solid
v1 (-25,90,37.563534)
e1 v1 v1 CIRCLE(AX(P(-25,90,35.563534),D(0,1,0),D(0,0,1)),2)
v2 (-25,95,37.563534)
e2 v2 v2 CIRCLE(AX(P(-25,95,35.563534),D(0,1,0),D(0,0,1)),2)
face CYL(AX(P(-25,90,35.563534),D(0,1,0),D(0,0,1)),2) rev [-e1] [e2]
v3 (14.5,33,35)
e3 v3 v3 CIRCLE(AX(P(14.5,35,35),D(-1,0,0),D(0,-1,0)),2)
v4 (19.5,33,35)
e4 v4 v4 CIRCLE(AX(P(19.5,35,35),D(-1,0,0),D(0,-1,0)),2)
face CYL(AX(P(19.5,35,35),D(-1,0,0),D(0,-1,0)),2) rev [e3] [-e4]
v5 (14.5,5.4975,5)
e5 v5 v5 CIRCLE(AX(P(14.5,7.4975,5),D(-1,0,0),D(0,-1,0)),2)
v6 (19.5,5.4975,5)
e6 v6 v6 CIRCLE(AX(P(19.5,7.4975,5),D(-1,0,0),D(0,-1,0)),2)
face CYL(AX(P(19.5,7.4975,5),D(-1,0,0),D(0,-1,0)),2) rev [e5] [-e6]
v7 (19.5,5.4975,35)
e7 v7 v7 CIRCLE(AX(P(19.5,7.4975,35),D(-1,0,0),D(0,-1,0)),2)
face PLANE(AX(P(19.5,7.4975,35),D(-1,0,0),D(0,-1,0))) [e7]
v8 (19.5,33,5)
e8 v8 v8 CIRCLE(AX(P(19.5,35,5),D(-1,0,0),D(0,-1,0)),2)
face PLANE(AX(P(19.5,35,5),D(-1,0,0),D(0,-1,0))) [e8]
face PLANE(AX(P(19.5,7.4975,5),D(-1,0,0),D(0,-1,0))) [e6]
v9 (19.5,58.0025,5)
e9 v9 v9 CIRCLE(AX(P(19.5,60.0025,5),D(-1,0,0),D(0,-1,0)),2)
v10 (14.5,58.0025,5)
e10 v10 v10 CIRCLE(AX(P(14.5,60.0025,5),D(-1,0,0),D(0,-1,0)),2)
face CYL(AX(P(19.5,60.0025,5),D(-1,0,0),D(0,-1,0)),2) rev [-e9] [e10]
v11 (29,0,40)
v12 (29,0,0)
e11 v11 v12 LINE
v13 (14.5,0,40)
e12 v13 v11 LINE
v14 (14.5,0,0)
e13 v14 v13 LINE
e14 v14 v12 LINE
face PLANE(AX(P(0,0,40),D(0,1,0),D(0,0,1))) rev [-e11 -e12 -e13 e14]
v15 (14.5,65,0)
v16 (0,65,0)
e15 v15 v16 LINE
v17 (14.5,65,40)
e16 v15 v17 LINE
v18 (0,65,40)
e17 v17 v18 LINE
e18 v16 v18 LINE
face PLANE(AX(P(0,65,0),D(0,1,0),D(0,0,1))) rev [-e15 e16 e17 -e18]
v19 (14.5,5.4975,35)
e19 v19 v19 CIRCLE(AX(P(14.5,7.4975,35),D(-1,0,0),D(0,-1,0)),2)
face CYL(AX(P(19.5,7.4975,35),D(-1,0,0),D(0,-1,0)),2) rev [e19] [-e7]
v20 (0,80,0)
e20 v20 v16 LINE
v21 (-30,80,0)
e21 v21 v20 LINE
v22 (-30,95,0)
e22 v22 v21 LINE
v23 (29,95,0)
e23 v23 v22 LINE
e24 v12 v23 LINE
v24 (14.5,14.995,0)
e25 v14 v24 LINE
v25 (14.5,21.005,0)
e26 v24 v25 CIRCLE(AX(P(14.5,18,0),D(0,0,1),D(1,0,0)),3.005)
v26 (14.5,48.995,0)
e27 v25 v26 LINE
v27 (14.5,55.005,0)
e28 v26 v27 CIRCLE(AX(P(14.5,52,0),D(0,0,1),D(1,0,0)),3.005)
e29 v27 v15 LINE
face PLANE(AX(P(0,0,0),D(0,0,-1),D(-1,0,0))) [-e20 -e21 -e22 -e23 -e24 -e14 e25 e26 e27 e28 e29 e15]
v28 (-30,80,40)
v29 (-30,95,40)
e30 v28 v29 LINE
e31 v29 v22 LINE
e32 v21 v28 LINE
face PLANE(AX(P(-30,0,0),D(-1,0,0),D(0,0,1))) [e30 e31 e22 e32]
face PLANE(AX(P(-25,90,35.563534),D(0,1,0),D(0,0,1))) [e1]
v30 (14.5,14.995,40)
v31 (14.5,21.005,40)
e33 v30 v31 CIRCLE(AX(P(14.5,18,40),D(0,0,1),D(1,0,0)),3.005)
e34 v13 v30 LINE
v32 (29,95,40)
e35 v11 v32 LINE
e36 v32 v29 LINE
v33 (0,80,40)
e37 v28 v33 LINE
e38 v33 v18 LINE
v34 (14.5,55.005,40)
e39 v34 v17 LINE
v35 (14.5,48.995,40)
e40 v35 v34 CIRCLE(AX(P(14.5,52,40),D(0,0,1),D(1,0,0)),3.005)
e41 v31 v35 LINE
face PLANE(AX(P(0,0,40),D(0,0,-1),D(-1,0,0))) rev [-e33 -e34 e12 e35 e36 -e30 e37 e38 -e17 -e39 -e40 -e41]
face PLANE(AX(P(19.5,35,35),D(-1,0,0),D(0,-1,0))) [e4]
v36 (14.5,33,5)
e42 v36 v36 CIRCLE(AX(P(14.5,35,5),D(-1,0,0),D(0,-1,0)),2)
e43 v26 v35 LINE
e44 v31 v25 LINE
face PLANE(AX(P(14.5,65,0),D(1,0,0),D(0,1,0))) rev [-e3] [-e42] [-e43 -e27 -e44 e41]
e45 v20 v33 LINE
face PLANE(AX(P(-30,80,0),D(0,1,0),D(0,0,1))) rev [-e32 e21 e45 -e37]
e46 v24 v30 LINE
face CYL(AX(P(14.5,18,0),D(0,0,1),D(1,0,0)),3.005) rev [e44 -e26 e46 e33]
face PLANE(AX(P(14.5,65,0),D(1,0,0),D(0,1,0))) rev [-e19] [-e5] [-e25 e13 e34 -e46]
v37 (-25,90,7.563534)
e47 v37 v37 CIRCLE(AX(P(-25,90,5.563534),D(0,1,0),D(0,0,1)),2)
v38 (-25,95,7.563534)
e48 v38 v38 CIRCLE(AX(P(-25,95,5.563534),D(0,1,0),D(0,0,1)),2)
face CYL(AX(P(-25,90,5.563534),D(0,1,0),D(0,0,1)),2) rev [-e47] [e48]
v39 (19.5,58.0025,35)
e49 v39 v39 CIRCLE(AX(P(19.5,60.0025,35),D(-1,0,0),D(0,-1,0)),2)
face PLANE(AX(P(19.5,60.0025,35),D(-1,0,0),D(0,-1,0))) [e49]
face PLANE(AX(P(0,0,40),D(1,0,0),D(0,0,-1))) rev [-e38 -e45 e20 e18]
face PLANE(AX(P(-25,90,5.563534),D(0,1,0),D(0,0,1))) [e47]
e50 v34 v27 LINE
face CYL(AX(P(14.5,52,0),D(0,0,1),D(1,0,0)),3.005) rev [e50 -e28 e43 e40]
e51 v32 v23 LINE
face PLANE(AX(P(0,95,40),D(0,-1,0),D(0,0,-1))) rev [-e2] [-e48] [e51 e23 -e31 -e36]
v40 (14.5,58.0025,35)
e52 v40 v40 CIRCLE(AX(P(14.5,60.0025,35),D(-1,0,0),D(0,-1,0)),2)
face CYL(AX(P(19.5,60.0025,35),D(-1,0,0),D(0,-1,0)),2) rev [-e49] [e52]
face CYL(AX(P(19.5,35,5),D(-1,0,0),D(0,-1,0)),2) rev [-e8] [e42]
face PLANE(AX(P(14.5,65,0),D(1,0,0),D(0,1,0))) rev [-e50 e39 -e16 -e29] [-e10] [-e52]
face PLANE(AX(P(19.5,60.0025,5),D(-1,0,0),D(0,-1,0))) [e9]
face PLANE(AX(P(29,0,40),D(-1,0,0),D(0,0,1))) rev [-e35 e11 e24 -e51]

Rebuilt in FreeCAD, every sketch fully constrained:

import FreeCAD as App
import Part
import Sketcher

V = App.Vector

doc = App.newDocument("Part")
params = doc.addObject("Spreadsheet::Sheet", "Params")
for row, (alias, value) in enumerate([
    ("sketch1_width", "29 mm"),
    ("sketch1_height", "95 mm"),
    ("pad1_length", "40 mm"),
    ("sketch2_diameter", "6.01 mm"),
    ("sketch3_width", "15 mm"),
    ("sketch3_height", "40 mm"),
    ("pad2_length", "30 mm"),
    ("sketch4_height", "65 mm"),
    ("sketch4_width", "14.5 mm"),
    ("sketch5_diameter", "4 mm"),
    ("pocket3_length", "5 mm"),
    ("sketch6_diameter", "4 mm"),
    ("pocket4_length", "5 mm"),
    ("sketch7_diameter", "4 mm"),
    ("pocket5_length", "5 mm"),
    ("sketch8_diameter", "4 mm"),
    ("pocket6_length", "5 mm"),
], start=1):
    params.set(f"A{row}", alias)
    params.set(f"B{row}", "=" + value)
    params.setAlias(f"B{row}", alias)

body = doc.addObject("PartDesign::Body", "Body")

sketch1 = body.newObject("Sketcher::SketchObject", "Sketch")
sketch1.AttachmentSupport = (doc.getObject("XY_Plane"), [""])
sketch1.MapMode = "FlatFace"
sketch1.addGeometry(Part.LineSegment(V(0, 95, 0), V(0, 0, 0)), False)
sketch1.addGeometry(Part.LineSegment(V(0, 0, 0), V(29, 0, 0)), False)
sketch1.addGeometry(Part.LineSegment(V(29, 0, 0), V(29, 95, 0)), False)
sketch1.addGeometry(Part.LineSegment(V(29, 95, 0), V(0, 95, 0)), False)
sketch1.addConstraint(Sketcher.Constraint("Coincident", 0, 2, 1, 1))
sketch1.addConstraint(Sketcher.Constraint("Coincident", 1, 2, 2, 1))
sketch1.addConstraint(Sketcher.Constraint("Coincident", 2, 2, 3, 1))
sketch1.addConstraint(Sketcher.Constraint("Coincident", 3, 2, 0, 1))
sketch1.addConstraint(Sketcher.Constraint("Vertical", 0))
sketch1.addConstraint(Sketcher.Constraint("Horizontal", 1))
sketch1.addConstraint(Sketcher.Constraint("Vertical", 2))
sketch1.addConstraint(Sketcher.Constraint("Horizontal", 3))
sketch1.addConstraint(Sketcher.Constraint("Coincident", 0, 2, -1, 1))
sketch1.addConstraint(Sketcher.Constraint("DistanceX", 1, 1, 1, 2, 29.0))
sketch1.addConstraint(Sketcher.Constraint("DistanceY", 0, 2, 0, 1, 95.0))
sketch1.setExpression("Constraints[9]", "Params.sketch1_width")
sketch1.setExpression("Constraints[10]", "Params.sketch1_height")
pad1 = body.newObject("PartDesign::Pad", "Pad")
pad1.Profile = sketch1
pad1.setExpression("Length", "Params.pad1_length")

sketch2 = body.newObject("Sketcher::SketchObject", "Sketch001")
sketch2.AttachmentSupport = (doc.getObject("XY_Plane"), [""])
sketch2.MapMode = "FlatFace"
sketch2.AttachmentOffset = App.Placement(V(0, 0, 40), App.Rotation())
sketch2.addGeometry(Part.Circle(V(14.5, 52, 0), V(0, 0, 1), 3), False)
sketch2.addGeometry(Part.Circle(V(14.5, 18, 0), V(0, 0, 1), 3), False)
sketch2.addConstraint(Sketcher.Constraint("Equal", 0, 1))
sketch2.addConstraint(Sketcher.Constraint("Vertical", 0, 3, 1, 3))
sketch2.addConstraint(Sketcher.Constraint("Diameter", 0, 6.01))
sketch2.addConstraint(Sketcher.Constraint("DistanceY", -1, 1, 0, 3, 52.0))
sketch2.addConstraint(Sketcher.Constraint("DistanceY", -1, 1, 1, 3, 18.0))
sketch2.addConstraint(Sketcher.Constraint("DistanceX", -1, 1, 0, 3, 14.5))
sketch2.setExpression("Constraints[2]", "Params.sketch2_diameter")
pocket1 = body.newObject("PartDesign::Pocket", "Pocket")
pocket1.Profile = sketch2
pocket1.Type = "ThroughAll"

sketch3 = body.newObject("Sketcher::SketchObject", "Sketch002")
sketch3.AttachmentSupport = (doc.getObject("YZ_Plane"), [""])
sketch3.MapMode = "FlatFace"
sketch3.addGeometry(Part.LineSegment(V(95, 0, 0), V(80, 0, 0)), False)
sketch3.addGeometry(Part.LineSegment(V(80, 0, 0), V(80, 40, 0)), False)
sketch3.addGeometry(Part.LineSegment(V(80, 40, 0), V(95, 40, 0)), False)
sketch3.addGeometry(Part.LineSegment(V(95, 40, 0), V(95, 0, 0)), False)
sketch3.addConstraint(Sketcher.Constraint("Coincident", 0, 2, 1, 1))
sketch3.addConstraint(Sketcher.Constraint("Coincident", 1, 2, 2, 1))
sketch3.addConstraint(Sketcher.Constraint("Coincident", 2, 2, 3, 1))
sketch3.addConstraint(Sketcher.Constraint("Coincident", 3, 2, 0, 1))
sketch3.addConstraint(Sketcher.Constraint("Horizontal", 0))
sketch3.addConstraint(Sketcher.Constraint("Vertical", 1))
sketch3.addConstraint(Sketcher.Constraint("Horizontal", 2))
sketch3.addConstraint(Sketcher.Constraint("Vertical", 3))
sketch3.addConstraint(Sketcher.Constraint("PointOnObject", 0, 2, -1))
sketch3.addConstraint(Sketcher.Constraint("DistanceX", 0, 2, 0, 1, 15.0))
sketch3.addConstraint(Sketcher.Constraint("DistanceY", 1, 1, 1, 2, 40.0))
sketch3.addConstraint(Sketcher.Constraint("DistanceX", -1, 1, 0, 2, 80.0))
sketch3.setExpression("Constraints[9]", "Params.sketch3_width")
sketch3.setExpression("Constraints[10]", "Params.sketch3_height")
pad2 = body.newObject("PartDesign::Pad", "Pad001")
pad2.Profile = sketch3
pad2.setExpression("Length", "Params.pad2_length")
pad2.Reversed = True

sketch4 = body.newObject("Sketcher::SketchObject", "Sketch003")
sketch4.AttachmentSupport = (doc.getObject("XY_Plane"), [""])
sketch4.MapMode = "FlatFace"
sketch4.AttachmentOffset = App.Placement(V(0, 0, 40), App.Rotation())
sketch4.addGeometry(Part.LineSegment(V(0, 65, 0), V(0, 0, 0)), False)
sketch4.addGeometry(Part.LineSegment(V(0, 0, 0), V(14, 0, 0)), False)
sketch4.addGeometry(Part.LineSegment(V(14, 0, 0), V(14, 65, 0)), False)
sketch4.addGeometry(Part.LineSegment(V(14, 65, 0), V(0, 65, 0)), False)
sketch4.addConstraint(Sketcher.Constraint("Coincident", 0, 2, 1, 1))
sketch4.addConstraint(Sketcher.Constraint("Coincident", 1, 2, 2, 1))
sketch4.addConstraint(Sketcher.Constraint("Coincident", 2, 2, 3, 1))
sketch4.addConstraint(Sketcher.Constraint("Coincident", 3, 2, 0, 1))
sketch4.addConstraint(Sketcher.Constraint("Vertical", 0))
sketch4.addConstraint(Sketcher.Constraint("Horizontal", 1))
sketch4.addConstraint(Sketcher.Constraint("Vertical", 2))
sketch4.addConstraint(Sketcher.Constraint("Horizontal", 3))
sketch4.addConstraint(Sketcher.Constraint("Coincident", 0, 2, -1, 1))
sketch4.addConstraint(Sketcher.Constraint("DistanceY", 0, 2, 0, 1, 65.0))
sketch4.addConstraint(Sketcher.Constraint("DistanceX", 1, 1, 1, 2, 14.5))
sketch4.setExpression("Constraints[9]", "Params.sketch4_height")
sketch4.setExpression("Constraints[10]", "Params.sketch4_width")
pocket2 = body.newObject("PartDesign::Pocket", "Pocket001")
pocket2.Profile = sketch4
pocket2.Type = "ThroughAll"

sketch5 = body.newObject("Sketcher::SketchObject", "Sketch004")
sketch5.AttachmentSupport = (doc.getObject("YZ_Plane"), [""])
sketch5.MapMode = "FlatFace"
sketch5.AttachmentOffset = App.Placement(V(0, 0, 14.5), App.Rotation())
sketch5.addGeometry(Part.Circle(V(60, 5, 0), V(0, 0, 1), 2), False)
sketch5.addGeometry(Part.Circle(V(60, 35, 0), V(0, 0, 1), 2), False)
sketch5.addConstraint(Sketcher.Constraint("Equal", 0, 1))
sketch5.addConstraint(Sketcher.Constraint("Vertical", 0, 3, 1, 3))
sketch5.addConstraint(Sketcher.Constraint("Diameter", 0, 4.0))
sketch5.addConstraint(Sketcher.Constraint("DistanceY", -1, 1, 0, 3, 5.0))
sketch5.addConstraint(Sketcher.Constraint("DistanceY", -1, 1, 1, 3, 35.0))
sketch5.addConstraint(Sketcher.Constraint("DistanceX", -1, 1, 0, 3, 60.0025))
sketch5.setExpression("Constraints[2]", "Params.sketch5_diameter")
pocket3 = body.newObject("PartDesign::Pocket", "Pocket002")
pocket3.Profile = sketch5
pocket3.setExpression("Length", "Params.pocket3_length")
pocket3.Reversed = True

sketch6 = body.newObject("Sketcher::SketchObject", "Sketch005")
sketch6.AttachmentSupport = (doc.getObject("YZ_Plane"), [""])
sketch6.MapMode = "FlatFace"
sketch6.AttachmentOffset = App.Placement(V(0, 0, 14.5), App.Rotation())
sketch6.addGeometry(Part.Circle(V(7.5, 5, 0), V(0, 0, 1), 2), False)
sketch6.addGeometry(Part.Circle(V(7.5, 35, 0), V(0, 0, 1), 2), False)
sketch6.addConstraint(Sketcher.Constraint("Equal", 0, 1))
sketch6.addConstraint(Sketcher.Constraint("Vertical", 0, 3, 1, 3))
sketch6.addConstraint(Sketcher.Constraint("Diameter", 0, 4.0))
sketch6.addConstraint(Sketcher.Constraint("DistanceY", -1, 1, 0, 3, 5.0))
sketch6.addConstraint(Sketcher.Constraint("DistanceY", -1, 1, 1, 3, 35.0))
sketch6.addConstraint(Sketcher.Constraint("DistanceX", -1, 1, 0, 3, 7.4975))
sketch6.setExpression("Constraints[2]", "Params.sketch6_diameter")
pocket4 = body.newObject("PartDesign::Pocket", "Pocket003")
pocket4.Profile = sketch6
pocket4.setExpression("Length", "Params.pocket4_length")
pocket4.Reversed = True

sketch7 = body.newObject("Sketcher::SketchObject", "Sketch006")
sketch7.AttachmentSupport = (doc.getObject("YZ_Plane"), [""])
sketch7.MapMode = "FlatFace"
sketch7.AttachmentOffset = App.Placement(V(0, 0, 14.5), App.Rotation())
sketch7.addGeometry(Part.Circle(V(35, 5, 0), V(0, 0, 1), 2), False)
sketch7.addGeometry(Part.Circle(V(35, 35, 0), V(0, 0, 1), 2), False)
sketch7.addConstraint(Sketcher.Constraint("Equal", 0, 1))
sketch7.addConstraint(Sketcher.Constraint("Vertical", 0, 3, 1, 3))
sketch7.addConstraint(Sketcher.Constraint("Diameter", 0, 4.0))
sketch7.addConstraint(Sketcher.Constraint("DistanceX", -1, 1, 0, 3, 35.0))
sketch7.addConstraint(Sketcher.Constraint("DistanceY", -1, 1, 0, 3, 5.0))
sketch7.addConstraint(Sketcher.Constraint("DistanceY", -1, 1, 1, 3, 35.0))
sketch7.setExpression("Constraints[2]", "Params.sketch7_diameter")
pocket5 = body.newObject("PartDesign::Pocket", "Pocket004")
pocket5.Profile = sketch7
pocket5.setExpression("Length", "Params.pocket5_length")
pocket5.Reversed = True

sketch8 = body.newObject("Sketcher::SketchObject", "Sketch007")
sketch8.AttachmentSupport = (doc.getObject("XZ_Plane"), [""])
sketch8.MapMode = "FlatFace"
sketch8.AttachmentOffset = App.Placement(V(0, 0, -95), App.Rotation())
sketch8.addGeometry(Part.Circle(V(-25, 35.6, 0), V(0, 0, 1), 2), False)
sketch8.addGeometry(Part.Circle(V(-25, 5.6, 0), V(0, 0, 1), 2), False)
sketch8.addConstraint(Sketcher.Constraint("Equal", 0, 1))
sketch8.addConstraint(Sketcher.Constraint("Vertical", 0, 3, 1, 3))
sketch8.addConstraint(Sketcher.Constraint("Diameter", 0, 4.0))
sketch8.addConstraint(Sketcher.Constraint("DistanceX", 0, 3, -1, 1, 25.0))
sketch8.addConstraint(Sketcher.Constraint("DistanceY", 1, 3, 0, 3, 30.0))
sketch8.addConstraint(Sketcher.Constraint("DistanceY", -1, 1, 0, 3, 35.563534))
sketch8.setExpression("Constraints[2]", "Params.sketch8_diameter")
pocket6 = body.newObject("PartDesign::Pocket", "Pocket005")
pocket6.Profile = sketch8
pocket6.setExpression("Length", "Params.pocket6_length")
pocket6.Reversed = True

doc.recompute()
